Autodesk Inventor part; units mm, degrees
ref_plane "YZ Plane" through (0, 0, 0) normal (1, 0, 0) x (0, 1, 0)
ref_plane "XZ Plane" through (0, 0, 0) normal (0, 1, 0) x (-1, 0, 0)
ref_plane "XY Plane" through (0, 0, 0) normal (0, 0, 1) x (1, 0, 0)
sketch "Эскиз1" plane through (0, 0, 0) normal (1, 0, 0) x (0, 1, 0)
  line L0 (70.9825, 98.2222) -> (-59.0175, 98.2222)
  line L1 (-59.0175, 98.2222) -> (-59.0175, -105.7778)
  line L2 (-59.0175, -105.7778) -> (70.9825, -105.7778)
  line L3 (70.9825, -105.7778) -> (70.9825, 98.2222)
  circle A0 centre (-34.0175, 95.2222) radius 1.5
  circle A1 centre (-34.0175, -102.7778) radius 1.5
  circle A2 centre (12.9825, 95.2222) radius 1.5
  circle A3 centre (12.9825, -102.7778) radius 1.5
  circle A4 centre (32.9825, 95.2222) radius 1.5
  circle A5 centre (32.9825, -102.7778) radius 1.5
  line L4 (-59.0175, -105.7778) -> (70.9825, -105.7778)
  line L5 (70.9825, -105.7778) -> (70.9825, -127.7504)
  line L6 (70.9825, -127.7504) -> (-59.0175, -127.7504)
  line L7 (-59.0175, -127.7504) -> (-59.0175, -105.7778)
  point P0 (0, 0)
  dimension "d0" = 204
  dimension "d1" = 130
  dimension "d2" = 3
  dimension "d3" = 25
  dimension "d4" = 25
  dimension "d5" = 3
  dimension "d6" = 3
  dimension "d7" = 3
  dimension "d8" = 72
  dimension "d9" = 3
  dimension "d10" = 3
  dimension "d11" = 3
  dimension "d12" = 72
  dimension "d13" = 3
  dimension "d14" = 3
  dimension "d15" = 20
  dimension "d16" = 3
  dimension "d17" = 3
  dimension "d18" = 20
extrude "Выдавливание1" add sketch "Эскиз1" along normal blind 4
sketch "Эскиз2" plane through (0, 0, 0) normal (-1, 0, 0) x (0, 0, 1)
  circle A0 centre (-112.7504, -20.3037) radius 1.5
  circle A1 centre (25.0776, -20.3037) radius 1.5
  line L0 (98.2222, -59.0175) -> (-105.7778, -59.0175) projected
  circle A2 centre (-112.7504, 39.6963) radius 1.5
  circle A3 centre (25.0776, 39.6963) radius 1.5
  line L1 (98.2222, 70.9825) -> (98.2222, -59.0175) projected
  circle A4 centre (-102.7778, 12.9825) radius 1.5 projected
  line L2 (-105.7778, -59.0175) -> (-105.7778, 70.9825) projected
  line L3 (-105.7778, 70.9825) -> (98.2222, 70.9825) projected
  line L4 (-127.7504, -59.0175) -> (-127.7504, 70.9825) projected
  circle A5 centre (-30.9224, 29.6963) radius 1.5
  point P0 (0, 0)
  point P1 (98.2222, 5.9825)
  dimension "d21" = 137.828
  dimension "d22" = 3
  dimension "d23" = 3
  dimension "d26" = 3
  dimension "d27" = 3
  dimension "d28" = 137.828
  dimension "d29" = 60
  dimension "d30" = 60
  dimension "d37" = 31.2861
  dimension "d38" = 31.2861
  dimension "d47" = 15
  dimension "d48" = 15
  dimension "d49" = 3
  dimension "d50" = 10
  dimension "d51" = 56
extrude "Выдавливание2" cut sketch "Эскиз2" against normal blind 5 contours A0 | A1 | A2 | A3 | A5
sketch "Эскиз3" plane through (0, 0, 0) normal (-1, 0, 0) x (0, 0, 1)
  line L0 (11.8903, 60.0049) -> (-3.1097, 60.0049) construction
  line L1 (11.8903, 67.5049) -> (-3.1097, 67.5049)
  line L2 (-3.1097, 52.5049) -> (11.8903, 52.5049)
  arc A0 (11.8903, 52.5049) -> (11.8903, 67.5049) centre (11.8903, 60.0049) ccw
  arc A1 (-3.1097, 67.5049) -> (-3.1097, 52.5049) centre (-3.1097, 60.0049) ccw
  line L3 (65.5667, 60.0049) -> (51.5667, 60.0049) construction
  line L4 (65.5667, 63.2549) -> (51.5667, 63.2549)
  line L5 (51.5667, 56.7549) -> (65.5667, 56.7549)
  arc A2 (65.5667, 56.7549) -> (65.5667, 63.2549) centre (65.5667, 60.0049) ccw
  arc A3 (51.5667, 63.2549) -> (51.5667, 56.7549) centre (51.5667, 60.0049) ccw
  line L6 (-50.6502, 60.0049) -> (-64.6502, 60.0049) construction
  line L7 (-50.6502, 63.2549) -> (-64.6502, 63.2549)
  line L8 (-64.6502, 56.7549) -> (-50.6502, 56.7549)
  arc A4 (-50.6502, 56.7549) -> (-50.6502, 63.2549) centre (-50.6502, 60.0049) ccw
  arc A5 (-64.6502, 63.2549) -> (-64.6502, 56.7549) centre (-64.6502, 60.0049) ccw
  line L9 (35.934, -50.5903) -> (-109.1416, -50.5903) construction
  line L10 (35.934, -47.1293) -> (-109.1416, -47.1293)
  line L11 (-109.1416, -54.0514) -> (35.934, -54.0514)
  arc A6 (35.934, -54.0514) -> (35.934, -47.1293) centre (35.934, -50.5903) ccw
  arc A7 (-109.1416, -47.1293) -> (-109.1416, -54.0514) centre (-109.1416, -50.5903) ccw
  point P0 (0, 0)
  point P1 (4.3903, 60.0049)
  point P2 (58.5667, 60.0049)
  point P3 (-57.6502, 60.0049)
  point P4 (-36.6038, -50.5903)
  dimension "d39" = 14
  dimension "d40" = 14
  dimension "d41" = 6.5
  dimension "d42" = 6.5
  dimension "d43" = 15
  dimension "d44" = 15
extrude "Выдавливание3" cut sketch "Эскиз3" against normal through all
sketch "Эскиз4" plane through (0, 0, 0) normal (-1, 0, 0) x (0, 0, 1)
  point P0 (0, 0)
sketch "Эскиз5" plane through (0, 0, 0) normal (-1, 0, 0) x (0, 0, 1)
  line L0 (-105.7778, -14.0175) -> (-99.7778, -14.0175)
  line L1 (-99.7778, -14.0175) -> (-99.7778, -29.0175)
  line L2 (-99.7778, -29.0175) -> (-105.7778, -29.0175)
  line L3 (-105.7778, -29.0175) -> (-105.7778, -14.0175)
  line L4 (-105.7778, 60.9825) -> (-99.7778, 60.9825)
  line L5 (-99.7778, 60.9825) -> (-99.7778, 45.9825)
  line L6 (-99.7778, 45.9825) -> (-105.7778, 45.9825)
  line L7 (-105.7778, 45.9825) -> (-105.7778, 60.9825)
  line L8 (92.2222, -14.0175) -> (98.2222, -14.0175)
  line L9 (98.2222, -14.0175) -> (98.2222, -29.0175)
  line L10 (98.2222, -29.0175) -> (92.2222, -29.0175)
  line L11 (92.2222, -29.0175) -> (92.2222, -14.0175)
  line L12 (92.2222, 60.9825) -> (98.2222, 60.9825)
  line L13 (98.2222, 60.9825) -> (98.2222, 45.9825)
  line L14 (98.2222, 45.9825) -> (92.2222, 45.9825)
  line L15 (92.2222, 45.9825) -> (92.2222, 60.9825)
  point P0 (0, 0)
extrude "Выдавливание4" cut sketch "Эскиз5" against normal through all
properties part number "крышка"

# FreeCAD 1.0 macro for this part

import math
import FreeCAD as App
import Part
import Sketcher

V = App.Vector

doc = App.newDocument("Part")
params = doc.addObject("Spreadsheet::Sheet", "Params")
for row, (alias, value) in enumerate([
    ("sketch1_diameter", "3 mm"),
    ("sketch1_width", "130 mm"),
    ("pad1_length", "4 mm"),
    ("sketch2_diameter", "3 mm"),
    ("pocket1_length", "5 mm"),
    ("sketch3_radius", "7.5 mm"),
    ("sketch3_height", "15 mm"),
    ("sketch3_height2", "14 mm"),
    ("sketch3_radius2", "3.25 mm"),
    ("sketch4_width", "15 mm"),
    ("sketch4_height", "6 mm"),
], start=1):
    params.set(f"A{row}", alias)
    params.set(f"B{row}", "=" + value)
    params.setAlias(f"B{row}", alias)

body = doc.addObject("PartDesign::Body", "Body")

# Sketch on YZ plane
sketch1 = body.newObject("Sketcher::SketchObject", "Sketch")
sketch1.AttachmentSupport = (doc.getObject("YZ_Plane"), [""])
sketch1.MapMode = "FlatFace"
sketch1.addGeometry(Part.LineSegment(V(71, 98.2, 0), V(-59, 98.2, 0)), False)
sketch1.addGeometry(Part.LineSegment(V(-59, 98.2, 0), V(-59, -127.8, 0)), False)
sketch1.addGeometry(Part.LineSegment(V(-59, -127.8, 0), V(71, -127.8, 0)), False)
sketch1.addGeometry(Part.LineSegment(V(71, -127.8, 0), V(71, 98.2, 0)), False)
sketch1.addGeometry(Part.Circle(V(-34, -102.8, 0), V(0, 0, 1), 1.5), False)
sketch1.addGeometry(Part.Circle(V(13, -102.8, 0), V(0, 0, 1), 1.5), False)
sketch1.addGeometry(Part.Circle(V(33, -102.8, 0), V(0, 0, 1), 1.5), False)
sketch1.addGeometry(Part.Circle(V(-34, 95.2, 0), V(0, 0, 1), 1.5), False)
sketch1.addGeometry(Part.Circle(V(13, 95.2, 0), V(0, 0, 1), 1.5), False)
sketch1.addGeometry(Part.Circle(V(33, 95.2, 0), V(0, 0, 1), 1.5), False)
sketch1.addConstraint(Sketcher.Constraint("Coincident", 0, 2, 1, 1))
sketch1.addConstraint(Sketcher.Constraint("Coincident", 1, 2, 2, 1))
sketch1.addConstraint(Sketcher.Constraint("Coincident", 2, 2, 3, 1))
sketch1.addConstraint(Sketcher.Constraint("Coincident", 3, 2, 0, 1))
sketch1.addConstraint(Sketcher.Constraint("Horizontal", 0))
sketch1.addConstraint(Sketcher.Constraint("Vertical", 1))
sketch1.addConstraint(Sketcher.Constraint("Horizontal", 2))
sketch1.addConstraint(Sketcher.Constraint("Vertical", 3))
sketch1.addConstraint(Sketcher.Constraint("Equal", 4, 5))
sketch1.addConstraint(Sketcher.Constraint("Equal", 5, 6))
sketch1.addConstraint(Sketcher.Constraint("Equal", 6, 7))
sketch1.addConstraint(Sketcher.Constraint("Equal", 7, 8))
sketch1.addConstraint(Sketcher.Constraint("Equal", 8, 9))
sketch1.addConstraint(Sketcher.Constraint("Horizontal", 4, 3, 5, 3))
sketch1.addConstraint(Sketcher.Constraint("Horizontal", 5, 3, 6, 3))
sketch1.addConstraint(Sketcher.Constraint("Horizontal", 7, 3, 8, 3))
sketch1.addConstraint(Sketcher.Constraint("Horizontal", 8, 3, 9, 3))
sketch1.addConstraint(Sketcher.Constraint("Vertical", 4, 3, 7, 3))
sketch1.addConstraint(Sketcher.Constraint("Vertical", 5, 3, 8, 3))
sketch1.addConstraint(Sketcher.Constraint("Vertical", 6, 3, 9, 3))
sketch1.addConstraint(Sketcher.Constraint("Diameter", 4, 3.0))
sketch1.addConstraint(Sketcher.Constraint("DistanceX", 0, 2, 0, 1, 130.0))
sketch1.addConstraint(Sketcher.Constraint("DistanceX", 5, 3, 6, 3, 20.0))
sketch1.addConstraint(Sketcher.Constraint("DistanceX", 0, 2, 7, 3, 25.0))
sketch1.addConstraint(Sketcher.Constraint("DistanceY", 7, 3, 0, 2, 3.0))
sketch1.addConstraint(Sketcher.Constraint("DistanceX", 0, 2, 8, 3, 72.0))
sketch1.addConstraint(Sketcher.Constraint("DistanceY", 4, 3, 7, 3, 198.0))
sketch1.addConstraint(Sketcher.Constraint("DistanceY", 1, 2, 1, 1, 225.9726))
sketch1.addConstraint(Sketcher.Constraint("DistanceX", 4, 3, -1, 1, 34.0175))
sketch1.addConstraint(Sketcher.Constraint("DistanceY", 4, 3, -1, 1, 102.7778))
sketch1.setExpression("Constraints[20]", "Params.sketch1_diameter")
sketch1.setExpression("Constraints[21]", "Params.sketch1_width")
pad1 = body.newObject("PartDesign::Pad", "Pad")
pad1.Profile = sketch1
pad1.setExpression("Length", "Params.pad1_length")

# Sketch on YZ plane
sketch2 = body.newObject("Sketcher::SketchObject", "Sketch001")
sketch2.AttachmentSupport = (doc.getObject("YZ_Plane"), [""])
sketch2.MapMode = "FlatFace"
sketch2.addGeometry(Part.Circle(V(-20.3, -112.8, 0), V(0, 0, 1), 1.5), False)
sketch2.addGeometry(Part.Circle(V(-20.3, 25.1, 0), V(0, 0, 1), 1.5), False)
sketch2.addGeometry(Part.Circle(V(39.7, -112.8, 0), V(0, 0, 1), 1.5), False)
sketch2.addGeometry(Part.Circle(V(39.7, 25.1, 0), V(0, 0, 1), 1.5), False)
sketch2.addGeometry(Part.Circle(V(29.7, -30.9, 0), V(0, 0, 1), 1.5), False)
sketch2.addConstraint(Sketcher.Constraint("Equal", 0, 1))
sketch2.addConstraint(Sketcher.Constraint("Equal", 1, 2))
sketch2.addConstraint(Sketcher.Constraint("Equal", 2, 3))
sketch2.addConstraint(Sketcher.Constraint("Equal", 3, 4))
sketch2.addConstraint(Sketcher.Constraint("Horizontal", 0, 3, 2, 3))
sketch2.addConstraint(Sketcher.Constraint("Horizontal", 1, 3, 3, 3))
sketch2.addConstraint(Sketcher.Constraint("Vertical", 0, 3, 1, 3))
sketch2.addConstraint(Sketcher.Constraint("Vertical", 2, 3, 3, 3))
sketch2.addConstraint(Sketcher.Constraint("Diameter", 0, 3.0))
sketch2.addConstraint(Sketcher.Constraint("DistanceX", 0, 3, 2, 3, 60.0))
sketch2.addConstraint(Sketcher.Constraint("DistanceX", 4, 3, 3, 3, 10.0))
sketch2.addConstraint(Sketcher.Constraint("DistanceY", 4, 3, 3, 3, 56.0))
sketch2.addConstraint(Sketcher.Constraint("DistanceY", 0, 3, 1, 3, 137.828))
sketch2.addConstraint(Sketcher.Constraint("DistanceX", 0, 3, -1, 1, 20.3037))
sketch2.addConstraint(Sketcher.Constraint("DistanceY", 0, 3, -1, 1, 112.7504))
sketch2.setExpression("Constraints[8]", "Params.sketch2_diameter")
pocket1 = body.newObject("PartDesign::Pocket", "Pocket")
pocket1.Profile = sketch2
pocket1.setExpression("Length", "Params.pocket1_length")
pocket1.Reversed = True

# Sketch on YZ plane
sketch3 = body.newObject("Sketcher::SketchObject", "Sketch002")
sketch3.AttachmentSupport = (doc.getObject("YZ_Plane"), [""])
sketch3.MapMode = "FlatFace"
sketch3.addGeometry(Part.ArcOfCircle(Part.Circle(V(60, 11.9, 0), V(0, 0, 1), 7.5), math.radians(0), math.radians(180)), False)
sketch3.addGeometry(Part.LineSegment(V(67.5, 11.9, 0), V(67.5, -3.1, 0)), False)
sketch3.addGeometry(Part.ArcOfCircle(Part.Circle(V(60, -3.1, 0), V(0, 0, 1), 7.5), math.radians(180), math.radians(360)), False)
sketch3.addGeometry(Part.LineSegment(V(52.5, -3.1, 0), V(52.5, 11.9, 0)), False)
sketch3.addGeometry(Part.ArcOfCircle(Part.Circle(V(60, 65.6, 0), V(0, 0, 1), 3.2), math.radians(0), math.radians(180)), False)
sketch3.addGeometry(Part.LineSegment(V(63.3, 65.6, 0), V(63.3, 51.6, 0)), False)
sketch3.addGeometry(Part.ArcOfCircle(Part.Circle(V(60, 51.6, 0), V(0, 0, 1), 3.2), math.radians(180), math.radians(360)), False)
sketch3.addGeometry(Part.LineSegment(V(56.8, 51.6, 0), V(56.8, 65.6, 0)), False)
sketch3.addGeometry(Part.ArcOfCircle(Part.Circle(V(60, -50.7, 0), V(0, 0, 1), 3.2), math.radians(0), math.radians(180)), False)
sketch3.addGeometry(Part.LineSegment(V(63.3, -50.7, 0), V(63.3, -64.7, 0)), False)
sketch3.addGeometry(Part.ArcOfCircle(Part.Circle(V(60, -64.7, 0), V(0, 0, 1), 3.2), math.radians(180), math.radians(360)), False)
sketch3.addGeometry(Part.LineSegment(V(56.8, -64.7, 0), V(56.8, -50.7, 0)), False)
sketch3.addGeometry(Part.ArcOfCircle(Part.Circle(V(-50.6, 35.9, 0), V(0, 0, 1), 3.5), math.radians(0), math.radians(180)), False)
sketch3.addGeometry(Part.LineSegment(V(-47.1, 35.9, 0), V(-47.1, -109.1, 0)), False)
sketch3.addGeometry(Part.ArcOfCircle(Part.Circle(V(-50.6, -109.1, 0), V(0, 0, 1), 3.5), math.radians(180), math.radians(360)), False)
sketch3.addGeometry(Part.LineSegment(V(-54.1, -109.1, 0), V(-54.1, 35.9, 0)), False)
sketch3.addConstraint(Sketcher.Constraint("Tangent", 0, 1, 1, 1))
sketch3.addConstraint(Sketcher.Constraint("Tangent", 1, 2, 2, 2))
sketch3.addConstraint(Sketcher.Constraint("Tangent", 2, 1, 3, 1))
sketch3.addConstraint(Sketcher.Constraint("Tangent", 3, 2, 0, 2))
sketch3.addConstraint(Sketcher.Constraint("Tangent", 4, 1, 5, 1))
sketch3.addConstraint(Sketcher.Constraint("Tangent", 5, 2, 6, 2))
sketch3.addConstraint(Sketcher.Constraint("Tangent", 6, 1, 7, 1))
sketch3.addConstraint(Sketcher.Constraint("Tangent", 7, 2, 4, 2))
sketch3.addConstraint(Sketcher.Constraint("Tangent", 8, 1, 9, 1))
sketch3.addConstraint(Sketcher.Constraint("Tangent", 9, 2, 10, 2))
sketch3.addConstraint(Sketcher.Constraint("Tangent", 10, 1, 11, 1))
sketch3.addConstraint(Sketcher.Constraint("Tangent", 11, 2, 8, 2))
sketch3.addConstraint(Sketcher.Constraint("Tangent", 12, 1, 13, 1))
sketch3.addConstraint(Sketcher.Constraint("Tangent", 13, 2, 14, 2))
sketch3.addConstraint(Sketcher.Constraint("Tangent", 14, 1, 15, 1))
sketch3.addConstraint(Sketcher.Constraint("Tangent", 15, 2, 12, 2))
sketch3.addConstraint(Sketcher.Constraint("Vertical", 1))
sketch3.addConstraint(Sketcher.Constraint("Vertical", 3))
sketch3.addConstraint(Sketcher.Constraint("Vertical", 5))
sketch3.addConstraint(Sketcher.Constraint("Vertical", 7))
sketch3.addConstraint(Sketcher.Constraint("Vertical", 9))
sketch3.addConstraint(Sketcher.Constraint("Vertical", 11))
sketch3.addConstraint(Sketcher.Constraint("Vertical", 13))
sketch3.addConstraint(Sketcher.Constraint("Vertical", 15))
sketch3.addConstraint(Sketcher.Constraint("Equal", 6, 8))
sketch3.addConstraint(Sketcher.Constraint("Vertical", 2, 3, 4, 3))
sketch3.addConstraint(Sketcher.Constraint("Vertical", 6, 3, 8, 3))
sketch3.addConstraint(Sketcher.Constraint("Equal", 7, 9))
sketch3.addConstraint(Sketcher.Constraint("Radius", 0, 7.5))
sketch3.addConstraint(Sketcher.Constraint("DistanceY", 1, 2, 1, 1, 15.0))
sketch3.addConstraint(Sketcher.Constraint("DistanceY", 5, 2, 5, 1, 14.0))
sketch3.addConstraint(Sketcher.Constraint("Radius", 4, 3.25))
sketch3.addConstraint(Sketcher.Constraint("Radius", 12, 3.461))
sketch3.addConstraint(Sketcher.Constraint("DistanceY", 13, 2, 13, 1, 145.0756))
sketch3.addConstraint(Sketcher.Constraint("DistanceX", -1, 1, 0, 3, 60.005))
sketch3.addConstraint(Sketcher.Constraint("DistanceY", -1, 1, 12, 3, 35.934))
sketch3.addConstraint(Sketcher.Constraint("DistanceY", 8, 3, 6, 3, 102.217))
sketch3.addConstraint(Sketcher.Constraint("DistanceY", 14, 3, 2, 3, 106.032))
sketch3.addConstraint(Sketcher.Constraint("DistanceX", 12, 1, 3, 2, 99.634))
sketch3.addConstraint(Sketcher.Constraint("DistanceY", -1, 1, 4, 3, 65.5667))
sketch3.setExpression("Constraints[28]", "Params.sketch3_radius")
sketch3.setExpression("Constraints[29]", "Params.sketch3_height")
sketch3.setExpression("Constraints[30]", "Params.sketch3_height2")
sketch3.setExpression("Constraints[31]", "Params.sketch3_radius2")
pocket2 = body.newObject("PartDesign::Pocket", "Pocket001")
pocket2.Profile = sketch3
pocket2.Type = "ThroughAll"
pocket2.Reversed = True

# Sketch on YZ plane
sketch4 = body.newObject("Sketcher::SketchObject", "Sketch003")
sketch4.AttachmentSupport = (doc.getObject("YZ_Plane"), [""])
sketch4.MapMode = "FlatFace"
sketch4.addGeometry(Part.LineSegment(V(-14, -100, 0), V(-14, -106, 0)), False)
sketch4.addGeometry(Part.LineSegment(V(-14, -106, 0), V(-29, -106, 0)), False)
sketch4.addGeometry(Part.LineSegment(V(-29, -106, 0), V(-29, -100, 0)), False)
sketch4.addGeometry(Part.LineSegment(V(-29, -100, 0), V(-14, -100, 0)), False)
sketch4.addGeometry(Part.LineSegment(V(61, -100, 0), V(61, -106, 0)), False)
sketch4.addGeometry(Part.LineSegment(V(61, -106, 0), V(46, -106, 0)), False)
sketch4.addGeometry(Part.LineSegment(V(46, -106, 0), V(46, -100, 0)), False)
sketch4.addGeometry(Part.LineSegment(V(46, -100, 0), V(61, -100, 0)), False)
sketch4.addGeometry(Part.LineSegment(V(-14, 98, 0), V(-14, 92, 0)), False)
sketch4.addGeometry(Part.LineSegment(V(-14, 92, 0), V(-29, 92, 0)), False)
sketch4.addGeometry(Part.LineSegment(V(-29, 92, 0), V(-29, 98, 0)), False)
sketch4.addGeometry(Part.LineSegment(V(-29, 98, 0), V(-14, 98, 0)), False)
sketch4.addGeometry(Part.LineSegment(V(61, 98, 0), V(61, 92, 0)), False)
sketch4.addGeometry(Part.LineSegment(V(61, 92, 0), V(46, 92, 0)), False)
sketch4.addGeometry(Part.LineSegment(V(46, 92, 0), V(46, 98, 0)), False)
sketch4.addGeometry(Part.LineSegment(V(46, 98, 0), V(61, 98, 0)), False)
sketch4.addConstraint(Sketcher.Constraint("Coincident", 0, 2, 1, 1))
sketch4.addConstraint(Sketcher.Constraint("Coincident", 1, 2, 2, 1))
sketch4.addConstraint(Sketcher.Constraint("Coincident", 2, 2, 3, 1))
sketch4.addConstraint(Sketcher.Constraint("Coincident", 3, 2, 0, 1))
sketch4.addConstraint(Sketcher.Constraint("Coincident", 4, 2, 5, 1))
sketch4.addConstraint(Sketcher.Constraint("Coincident", 5, 2, 6, 1))
sketch4.addConstraint(Sketcher.Constraint("Coincident", 6, 2, 7, 1))
sketch4.addConstraint(Sketcher.Constraint("Coincident", 7, 2, 4, 1))
sketch4.addConstraint(Sketcher.Constraint("Coincident", 8, 2, 9, 1))
sketch4.addConstraint(Sketcher.Constraint("Coincident", 9, 2, 10, 1))
sketch4.addConstraint(Sketcher.Constraint("Coincident", 10, 2, 11, 1))
sketch4.addConstraint(Sketcher.Constraint("Coincident", 11, 2, 8, 1))
sketch4.addConstraint(Sketcher.Constraint("Coincident", 12, 2, 13, 1))
sketch4.addConstraint(Sketcher.Constraint("Coincident", 13, 2, 14, 1))
sketch4.addConstraint(Sketcher.Constraint("Coincident", 14, 2, 15, 1))
sketch4.addConstraint(Sketcher.Constraint("Coincident", 15, 2, 12, 1))
sketch4.addConstraint(Sketcher.Constraint("Vertical", 0))
sketch4.addConstraint(Sketcher.Constraint("Horizontal", 1))
sketch4.addConstraint(Sketcher.Constraint("Vertical", 2))
sketch4.addConstraint(Sketcher.Constraint("Horizontal", 3))
sketch4.addConstraint(Sketcher.Constraint("Vertical", 4))
sketch4.addConstraint(Sketcher.Constraint("Horizontal", 5))
sketch4.addConstraint(Sketcher.Constraint("Vertical", 6))
sketch4.addConstraint(Sketcher.Constraint("Horizontal", 7))
sketch4.addConstraint(Sketcher.Constraint("Vertical", 8))
sketch4.addConstraint(Sketcher.Constraint("Horizontal", 9))
sketch4.addConstraint(Sketcher.Constraint("Vertical", 10))
sketch4.addConstraint(Sketcher.Constraint("Horizontal", 11))
sketch4.addConstraint(Sketcher.Constraint("Vertical", 12))
sketch4.addConstraint(Sketcher.Constraint("Horizontal", 13))
sketch4.addConstraint(Sketcher.Constraint("Vertical", 14))
sketch4.addConstraint(Sketcher.Constraint("Horizontal", 15))
sketch4.addConstraint(Sketcher.Constraint("Horizontal", 1, 2, 4, 2))
sketch4.addConstraint(Sketcher.Constraint("Horizontal", 3, 2, 6, 2))
sketch4.addConstraint(Sketcher.Constraint("Horizontal", 9, 2, 12, 2))
sketch4.addConstraint(Sketcher.Constraint("Horizontal", 11, 2, 14, 2))
sketch4.addConstraint(Sketcher.Constraint("Vertical", 3, 2, 8, 2))
sketch4.addConstraint(Sketcher.Constraint("Vertical", 2, 2, 9, 2))
sketch4.addConstraint(Sketcher.Constraint("Vertical", 7, 2, 12, 2))
sketch4.addConstraint(Sketcher.Constraint("Vertical", 6, 2, 13, 2))
sketch4.addConstraint(Sketcher.Constraint("Equal", 3, 5))
sketch4.addConstraint(Sketcher.Constraint("Equal", 6, 8))
sketch4.addConstraint(Sketcher.Constraint("DistanceX", 1, 2, 1, 1, 15.0))
sketch4.addConstraint(Sketcher.Constraint("DistanceY", 0, 2, 0, 1, 6.0))
sketch4.addConstraint(Sketcher.Constraint("DistanceX", 0, 2, 4, 2, 75.0))
sketch4.addConstraint(Sketcher.Constraint("DistanceY", 3, 2, 8, 2, 192.0))
sketch4.addConstraint(Sketcher.Constraint("DistanceX", 0, 2, -1, 1, 14.0175))
sketch4.addConstraint(Sketcher.Constraint("DistanceY", 0, 2, -1, 1, 105.7778))
sketch4.setExpression("Constraints[42]", "Params.sketch4_width")
sketch4.setExpression("Constraints[43]", "Params.sketch4_height")
pocket3 = body.newObject("PartDesign::Pocket", "Pocket002")
pocket3.Profile = sketch4
pocket3.Type = "ThroughAll"
pocket3.Reversed = True

doc.recompute()
